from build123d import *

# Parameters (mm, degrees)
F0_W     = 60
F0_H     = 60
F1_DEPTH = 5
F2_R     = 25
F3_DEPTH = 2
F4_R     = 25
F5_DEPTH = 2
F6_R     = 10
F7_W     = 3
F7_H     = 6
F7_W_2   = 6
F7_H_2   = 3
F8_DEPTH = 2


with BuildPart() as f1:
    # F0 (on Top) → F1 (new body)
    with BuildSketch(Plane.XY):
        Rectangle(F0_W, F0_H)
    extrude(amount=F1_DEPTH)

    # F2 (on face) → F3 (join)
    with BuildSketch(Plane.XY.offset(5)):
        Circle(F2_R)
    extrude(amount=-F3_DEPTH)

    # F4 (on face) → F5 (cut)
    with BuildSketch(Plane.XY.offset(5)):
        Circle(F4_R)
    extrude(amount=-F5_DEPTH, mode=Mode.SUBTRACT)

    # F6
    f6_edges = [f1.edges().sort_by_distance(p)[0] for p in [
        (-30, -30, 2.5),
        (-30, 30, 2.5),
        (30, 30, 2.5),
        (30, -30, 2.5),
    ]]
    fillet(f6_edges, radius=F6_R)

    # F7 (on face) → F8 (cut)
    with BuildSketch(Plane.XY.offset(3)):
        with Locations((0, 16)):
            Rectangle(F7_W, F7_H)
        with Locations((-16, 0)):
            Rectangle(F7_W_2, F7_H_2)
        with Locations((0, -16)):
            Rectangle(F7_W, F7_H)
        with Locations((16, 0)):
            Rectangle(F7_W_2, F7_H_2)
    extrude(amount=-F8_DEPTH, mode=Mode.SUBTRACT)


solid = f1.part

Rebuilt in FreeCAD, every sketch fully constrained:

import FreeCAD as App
import Part
import Sketcher

V = App.Vector
Q = App.Units.Quantity


def edges_at(feature, points):
    """Names of the edges that pass closest to the given points."""
    edges = feature.Shape.Edges
    near = lambda p: min(range(len(edges)), key=lambda i: edges[i].distToShape(Part.Vertex(*p))[0])
    return sorted({f"Edge{near(p) + 1}" for p in points})

doc = App.newDocument("Part")
body = doc.addObject("PartDesign::Body", "Body")

sketch1 = body.newObject("Sketcher::SketchObject", "Sketch")
sketch1.AttachmentSupport = (doc.getObject("XY_Plane"), [""])
sketch1.MapMode = "FlatFace"
sketch1.addGeometry(Part.LineSegment(V(-30, 30, 0), V(-30, -30, 0)), False)
sketch1.addGeometry(Part.LineSegment(V(-30, -30, 0), V(30, -30, 0)), False)
sketch1.addGeometry(Part.LineSegment(V(30, -30, 0), V(30, 30, 0)), False)
sketch1.addGeometry(Part.LineSegment(V(30, 30, 0), V(-30, 30, 0)), False)
sketch1.addConstraint(Sketcher.Constraint("Coincident", 0, 2, 1, 1))
sketch1.addConstraint(Sketcher.Constraint("Coincident", 1, 2, 2, 1))
sketch1.addConstraint(Sketcher.Constraint("Coincident", 2, 2, 3, 1))
sketch1.addConstraint(Sketcher.Constraint("Coincident", 3, 2, 0, 1))
sketch1.addConstraint(Sketcher.Constraint("Vertical", 0))
sketch1.addConstraint(Sketcher.Constraint("Horizontal", 1))
sketch1.addConstraint(Sketcher.Constraint("Vertical", 2))
sketch1.addConstraint(Sketcher.Constraint("Horizontal", 3))
sketch1.addConstraint(Sketcher.Constraint("Symmetric", 0, 2, 2, 2, -1, 1))
sketch1.addConstraint(Sketcher.Constraint("Equal", 3, 0))
sketch1.addConstraint(Sketcher.Constraint("DistanceX", 1, 1, 1, 2, Q("60 mm")))
pad1 = body.newObject("PartDesign::Pad", "Pad")
pad1.Profile = sketch1
pad1.Length = 5

sketch2 = body.newObject("Sketcher::SketchObject", "Sketch001")
sketch2.AttachmentSupport = (doc.getObject("XY_Plane"), [""])
sketch2.MapMode = "FlatFace"
sketch2.AttachmentOffset = App.Placement(V(0, 0, 5), App.Rotation())
sketch2.addGeometry(Part.Circle(V(0, 0, 0), V(0, 0, 1), 25), False)
sketch2.addConstraint(Sketcher.Constraint("Coincident", 0, 3, -1, 1))
sketch2.addConstraint(Sketcher.Constraint("Diameter", 0, Q("50 mm")))
pad2 = body.newObject("PartDesign::Pad", "Pad001")
pad2.Profile = sketch2
pad2.Length = 2
pad2.Reversed = True

sketch3 = body.newObject("Sketcher::SketchObject", "Sketch002")
sketch3.AttachmentSupport = (doc.getObject("XY_Plane"), [""])
sketch3.MapMode = "FlatFace"
sketch3.AttachmentOffset = App.Placement(V(0, 0, 5), App.Rotation())
sketch3.addGeometry(Part.Circle(V(0, 0, 0), V(0, 0, 1), 25), False)
sketch3.addConstraint(Sketcher.Constraint("Coincident", 0, 3, -1, 1))
sketch3.addConstraint(Sketcher.Constraint("Diameter", 0, Q("50 mm")))
pocket1 = body.newObject("PartDesign::Pocket", "Pocket")
pocket1.Profile = sketch3
pocket1.Length = 2
doc.recompute()

fillet = body.newObject("PartDesign::Fillet", "Fillet")
fillet.Base = (pocket1, edges_at(pocket1, [
    (-30, -30, 2.5),
    (-30, 30, 2.5),
    (30, 30, 2.5),
    (30, -30, 2.5),
]))
fillet.Radius = 10

sketch4 = body.newObject("Sketcher::SketchObject", "Sketch003")
sketch4.AttachmentSupport = (doc.getObject("XY_Plane"), [""])
sketch4.MapMode = "FlatFace"
sketch4.AttachmentOffset = App.Placement(V(0, 0, 3), App.Rotation())
sketch4.addGeometry(Part.LineSegment(V(-1.5, 19, 0), V(-1.5, 13, 0)), False)
sketch4.addGeometry(Part.LineSegment(V(-1.5, 13, 0), V(1.5, 13, 0)), False)
sketch4.addGeometry(Part.LineSegment(V(1.5, 13, 0), V(1.5, 19, 0)), False)
sketch4.addGeometry(Part.LineSegment(V(1.5, 19, 0), V(-1.5, 19, 0)), False)
sketch4.addGeometry(Part.LineSegment(V(-19, 1.5, 0), V(-19, -1.5, 0)), False)
sketch4.addGeometry(Part.LineSegment(V(-19, -1.5, 0), V(-13, -1.5, 0)), False)
sketch4.addGeometry(Part.LineSegment(V(-13, -1.5, 0), V(-13, 1.5, 0)), False)
sketch4.addGeometry(Part.LineSegment(V(-13, 1.5, 0), V(-19, 1.5, 0)), False)
sketch4.addGeometry(Part.LineSegment(V(-1.5, -13, 0), V(-1.5, -19, 0)), False)
sketch4.addGeometry(Part.LineSegment(V(-1.5, -19, 0), V(1.5, -19, 0)), False)
sketch4.addGeometry(Part.LineSegment(V(1.5, -19, 0), V(1.5, -13, 0)), False)
sketch4.addGeometry(Part.LineSegment(V(1.5, -13, 0), V(-1.5, -13, 0)), False)
sketch4.addGeometry(Part.LineSegment(V(13, 1.5, 0), V(13, -1.5, 0)), False)
sketch4.addGeometry(Part.LineSegment(V(13, -1.5, 0), V(19, -1.5, 0)), False)
sketch4.addGeometry(Part.LineSegment(V(19, -1.5, 0), V(19, 1.5, 0)), False)
sketch4.addGeometry(Part.LineSegment(V(19, 1.5, 0), V(13, 1.5, 0)), False)
sketch4.addConstraint(Sketcher.Constraint("Coincident", 0, 2, 1, 1))
sketch4.addConstraint(Sketcher.Constraint("Coincident", 1, 2, 2, 1))
sketch4.addConstraint(Sketcher.Constraint("Coincident", 2, 2, 3, 1))
sketch4.addConstraint(Sketcher.Constraint("Coincident", 3, 2, 0, 1))
sketch4.addConstraint(Sketcher.Constraint("Coincident", 4, 2, 5, 1))
sketch4.addConstraint(Sketcher.Constraint("Coincident", 5, 2, 6, 1))
sketch4.addConstraint(Sketcher.Constraint("Coincident", 6, 2, 7, 1))
sketch4.addConstraint(Sketcher.Constraint("Coincident", 7, 2, 4, 1))
sketch4.addConstraint(Sketcher.Constraint("Coincident", 8, 2, 9, 1))
sketch4.addConstraint(Sketcher.Constraint("Coincident", 9, 2, 10, 1))
sketch4.addConstraint(Sketcher.Constraint("Coincident", 10, 2, 11, 1))
sketch4.addConstraint(Sketcher.Constraint("Coincident", 11, 2, 8, 1))
sketch4.addConstraint(Sketcher.Constraint("Coincident", 12, 2, 13, 1))
sketch4.addConstraint(Sketcher.Constraint("Coincident", 13, 2, 14, 1))
sketch4.addConstraint(Sketcher.Constraint("Coincident", 14, 2, 15, 1))
sketch4.addConstraint(Sketcher.Constraint("Coincident", 15, 2, 12, 1))
sketch4.addConstraint(Sketcher.Constraint("Vertical", 0))
sketch4.addConstraint(Sketcher.Constraint("Horizontal", 1))
sketch4.addConstraint(Sketcher.Constraint("Vertical", 2))
sketch4.addConstraint(Sketcher.Constraint("Horizontal", 3))
sketch4.addConstraint(Sketcher.Constraint("Vertical", 4))
sketch4.addConstraint(Sketcher.Constraint("Horizontal", 5))
sketch4.addConstraint(Sketcher.Constraint("Vertical", 6))
sketch4.addConstraint(Sketcher.Constraint("Horizontal", 7))
sketch4.addConstraint(Sketcher.Constraint("Vertical", 8))
sketch4.addConstraint(Sketcher.Constraint("Horizontal", 9))
sketch4.addConstraint(Sketcher.Constraint("Vertical", 10))
sketch4.addConstraint(Sketcher.Constraint("Horizontal", 11))
sketch4.addConstraint(Sketcher.Constraint("Vertical", 12))
sketch4.addConstraint(Sketcher.Constraint("Horizontal", 13))
sketch4.addConstraint(Sketcher.Constraint("Vertical", 14))
sketch4.addConstraint(Sketcher.Constraint("Horizontal", 15))
sketch4.addConstraint(Sketcher.Constraint("Symmetric", 2, 2, 8, 2, -1, 1))
sketch4.addConstraint(Sketcher.Constraint("Symmetric", 0, 2, 10, 2, -1, 1))
sketch4.addConstraint(Sketcher.Constraint("Symmetric", 6, 2, 12, 2, -1, 1))
sketch4.addConstraint(Sketcher.Constraint("Symmetric", 4, 2, 14, 2, -1, 1))
sketch4.addConstraint(Sketcher.Constraint("Horizontal", 5, 2, 12, 2))
sketch4.addConstraint(Sketcher.Constraint("Vertical", 3, 2, 8, 2))
sketch4.addConstraint(Sketcher.Constraint("Equal", 15, 0))
sketch4.addConstraint(Sketcher.Constraint("Equal", 11, 4))
sketch4.addConstraint(Sketcher.Constraint("DistanceX", 1, 1, 1, 2, Q("3 mm")))
sketch4.addConstraint(Sketcher.Constraint("DistanceX", 5, 1, 5, 2, Q("6 mm")))
sketch4.addConstraint(Sketcher.Constraint("DistanceY", -1, 1, 0, 2, Q("13 mm")))
sketch4.addConstraint(Sketcher.Constraint("DistanceX", 4, 2, -1, 1, Q("19 mm")))
pocket2 = body.newObject("PartDesign::Pocket", "Pocket001")
pocket2.Profile = sketch4
pocket2.Length = 2

doc.recompute()
